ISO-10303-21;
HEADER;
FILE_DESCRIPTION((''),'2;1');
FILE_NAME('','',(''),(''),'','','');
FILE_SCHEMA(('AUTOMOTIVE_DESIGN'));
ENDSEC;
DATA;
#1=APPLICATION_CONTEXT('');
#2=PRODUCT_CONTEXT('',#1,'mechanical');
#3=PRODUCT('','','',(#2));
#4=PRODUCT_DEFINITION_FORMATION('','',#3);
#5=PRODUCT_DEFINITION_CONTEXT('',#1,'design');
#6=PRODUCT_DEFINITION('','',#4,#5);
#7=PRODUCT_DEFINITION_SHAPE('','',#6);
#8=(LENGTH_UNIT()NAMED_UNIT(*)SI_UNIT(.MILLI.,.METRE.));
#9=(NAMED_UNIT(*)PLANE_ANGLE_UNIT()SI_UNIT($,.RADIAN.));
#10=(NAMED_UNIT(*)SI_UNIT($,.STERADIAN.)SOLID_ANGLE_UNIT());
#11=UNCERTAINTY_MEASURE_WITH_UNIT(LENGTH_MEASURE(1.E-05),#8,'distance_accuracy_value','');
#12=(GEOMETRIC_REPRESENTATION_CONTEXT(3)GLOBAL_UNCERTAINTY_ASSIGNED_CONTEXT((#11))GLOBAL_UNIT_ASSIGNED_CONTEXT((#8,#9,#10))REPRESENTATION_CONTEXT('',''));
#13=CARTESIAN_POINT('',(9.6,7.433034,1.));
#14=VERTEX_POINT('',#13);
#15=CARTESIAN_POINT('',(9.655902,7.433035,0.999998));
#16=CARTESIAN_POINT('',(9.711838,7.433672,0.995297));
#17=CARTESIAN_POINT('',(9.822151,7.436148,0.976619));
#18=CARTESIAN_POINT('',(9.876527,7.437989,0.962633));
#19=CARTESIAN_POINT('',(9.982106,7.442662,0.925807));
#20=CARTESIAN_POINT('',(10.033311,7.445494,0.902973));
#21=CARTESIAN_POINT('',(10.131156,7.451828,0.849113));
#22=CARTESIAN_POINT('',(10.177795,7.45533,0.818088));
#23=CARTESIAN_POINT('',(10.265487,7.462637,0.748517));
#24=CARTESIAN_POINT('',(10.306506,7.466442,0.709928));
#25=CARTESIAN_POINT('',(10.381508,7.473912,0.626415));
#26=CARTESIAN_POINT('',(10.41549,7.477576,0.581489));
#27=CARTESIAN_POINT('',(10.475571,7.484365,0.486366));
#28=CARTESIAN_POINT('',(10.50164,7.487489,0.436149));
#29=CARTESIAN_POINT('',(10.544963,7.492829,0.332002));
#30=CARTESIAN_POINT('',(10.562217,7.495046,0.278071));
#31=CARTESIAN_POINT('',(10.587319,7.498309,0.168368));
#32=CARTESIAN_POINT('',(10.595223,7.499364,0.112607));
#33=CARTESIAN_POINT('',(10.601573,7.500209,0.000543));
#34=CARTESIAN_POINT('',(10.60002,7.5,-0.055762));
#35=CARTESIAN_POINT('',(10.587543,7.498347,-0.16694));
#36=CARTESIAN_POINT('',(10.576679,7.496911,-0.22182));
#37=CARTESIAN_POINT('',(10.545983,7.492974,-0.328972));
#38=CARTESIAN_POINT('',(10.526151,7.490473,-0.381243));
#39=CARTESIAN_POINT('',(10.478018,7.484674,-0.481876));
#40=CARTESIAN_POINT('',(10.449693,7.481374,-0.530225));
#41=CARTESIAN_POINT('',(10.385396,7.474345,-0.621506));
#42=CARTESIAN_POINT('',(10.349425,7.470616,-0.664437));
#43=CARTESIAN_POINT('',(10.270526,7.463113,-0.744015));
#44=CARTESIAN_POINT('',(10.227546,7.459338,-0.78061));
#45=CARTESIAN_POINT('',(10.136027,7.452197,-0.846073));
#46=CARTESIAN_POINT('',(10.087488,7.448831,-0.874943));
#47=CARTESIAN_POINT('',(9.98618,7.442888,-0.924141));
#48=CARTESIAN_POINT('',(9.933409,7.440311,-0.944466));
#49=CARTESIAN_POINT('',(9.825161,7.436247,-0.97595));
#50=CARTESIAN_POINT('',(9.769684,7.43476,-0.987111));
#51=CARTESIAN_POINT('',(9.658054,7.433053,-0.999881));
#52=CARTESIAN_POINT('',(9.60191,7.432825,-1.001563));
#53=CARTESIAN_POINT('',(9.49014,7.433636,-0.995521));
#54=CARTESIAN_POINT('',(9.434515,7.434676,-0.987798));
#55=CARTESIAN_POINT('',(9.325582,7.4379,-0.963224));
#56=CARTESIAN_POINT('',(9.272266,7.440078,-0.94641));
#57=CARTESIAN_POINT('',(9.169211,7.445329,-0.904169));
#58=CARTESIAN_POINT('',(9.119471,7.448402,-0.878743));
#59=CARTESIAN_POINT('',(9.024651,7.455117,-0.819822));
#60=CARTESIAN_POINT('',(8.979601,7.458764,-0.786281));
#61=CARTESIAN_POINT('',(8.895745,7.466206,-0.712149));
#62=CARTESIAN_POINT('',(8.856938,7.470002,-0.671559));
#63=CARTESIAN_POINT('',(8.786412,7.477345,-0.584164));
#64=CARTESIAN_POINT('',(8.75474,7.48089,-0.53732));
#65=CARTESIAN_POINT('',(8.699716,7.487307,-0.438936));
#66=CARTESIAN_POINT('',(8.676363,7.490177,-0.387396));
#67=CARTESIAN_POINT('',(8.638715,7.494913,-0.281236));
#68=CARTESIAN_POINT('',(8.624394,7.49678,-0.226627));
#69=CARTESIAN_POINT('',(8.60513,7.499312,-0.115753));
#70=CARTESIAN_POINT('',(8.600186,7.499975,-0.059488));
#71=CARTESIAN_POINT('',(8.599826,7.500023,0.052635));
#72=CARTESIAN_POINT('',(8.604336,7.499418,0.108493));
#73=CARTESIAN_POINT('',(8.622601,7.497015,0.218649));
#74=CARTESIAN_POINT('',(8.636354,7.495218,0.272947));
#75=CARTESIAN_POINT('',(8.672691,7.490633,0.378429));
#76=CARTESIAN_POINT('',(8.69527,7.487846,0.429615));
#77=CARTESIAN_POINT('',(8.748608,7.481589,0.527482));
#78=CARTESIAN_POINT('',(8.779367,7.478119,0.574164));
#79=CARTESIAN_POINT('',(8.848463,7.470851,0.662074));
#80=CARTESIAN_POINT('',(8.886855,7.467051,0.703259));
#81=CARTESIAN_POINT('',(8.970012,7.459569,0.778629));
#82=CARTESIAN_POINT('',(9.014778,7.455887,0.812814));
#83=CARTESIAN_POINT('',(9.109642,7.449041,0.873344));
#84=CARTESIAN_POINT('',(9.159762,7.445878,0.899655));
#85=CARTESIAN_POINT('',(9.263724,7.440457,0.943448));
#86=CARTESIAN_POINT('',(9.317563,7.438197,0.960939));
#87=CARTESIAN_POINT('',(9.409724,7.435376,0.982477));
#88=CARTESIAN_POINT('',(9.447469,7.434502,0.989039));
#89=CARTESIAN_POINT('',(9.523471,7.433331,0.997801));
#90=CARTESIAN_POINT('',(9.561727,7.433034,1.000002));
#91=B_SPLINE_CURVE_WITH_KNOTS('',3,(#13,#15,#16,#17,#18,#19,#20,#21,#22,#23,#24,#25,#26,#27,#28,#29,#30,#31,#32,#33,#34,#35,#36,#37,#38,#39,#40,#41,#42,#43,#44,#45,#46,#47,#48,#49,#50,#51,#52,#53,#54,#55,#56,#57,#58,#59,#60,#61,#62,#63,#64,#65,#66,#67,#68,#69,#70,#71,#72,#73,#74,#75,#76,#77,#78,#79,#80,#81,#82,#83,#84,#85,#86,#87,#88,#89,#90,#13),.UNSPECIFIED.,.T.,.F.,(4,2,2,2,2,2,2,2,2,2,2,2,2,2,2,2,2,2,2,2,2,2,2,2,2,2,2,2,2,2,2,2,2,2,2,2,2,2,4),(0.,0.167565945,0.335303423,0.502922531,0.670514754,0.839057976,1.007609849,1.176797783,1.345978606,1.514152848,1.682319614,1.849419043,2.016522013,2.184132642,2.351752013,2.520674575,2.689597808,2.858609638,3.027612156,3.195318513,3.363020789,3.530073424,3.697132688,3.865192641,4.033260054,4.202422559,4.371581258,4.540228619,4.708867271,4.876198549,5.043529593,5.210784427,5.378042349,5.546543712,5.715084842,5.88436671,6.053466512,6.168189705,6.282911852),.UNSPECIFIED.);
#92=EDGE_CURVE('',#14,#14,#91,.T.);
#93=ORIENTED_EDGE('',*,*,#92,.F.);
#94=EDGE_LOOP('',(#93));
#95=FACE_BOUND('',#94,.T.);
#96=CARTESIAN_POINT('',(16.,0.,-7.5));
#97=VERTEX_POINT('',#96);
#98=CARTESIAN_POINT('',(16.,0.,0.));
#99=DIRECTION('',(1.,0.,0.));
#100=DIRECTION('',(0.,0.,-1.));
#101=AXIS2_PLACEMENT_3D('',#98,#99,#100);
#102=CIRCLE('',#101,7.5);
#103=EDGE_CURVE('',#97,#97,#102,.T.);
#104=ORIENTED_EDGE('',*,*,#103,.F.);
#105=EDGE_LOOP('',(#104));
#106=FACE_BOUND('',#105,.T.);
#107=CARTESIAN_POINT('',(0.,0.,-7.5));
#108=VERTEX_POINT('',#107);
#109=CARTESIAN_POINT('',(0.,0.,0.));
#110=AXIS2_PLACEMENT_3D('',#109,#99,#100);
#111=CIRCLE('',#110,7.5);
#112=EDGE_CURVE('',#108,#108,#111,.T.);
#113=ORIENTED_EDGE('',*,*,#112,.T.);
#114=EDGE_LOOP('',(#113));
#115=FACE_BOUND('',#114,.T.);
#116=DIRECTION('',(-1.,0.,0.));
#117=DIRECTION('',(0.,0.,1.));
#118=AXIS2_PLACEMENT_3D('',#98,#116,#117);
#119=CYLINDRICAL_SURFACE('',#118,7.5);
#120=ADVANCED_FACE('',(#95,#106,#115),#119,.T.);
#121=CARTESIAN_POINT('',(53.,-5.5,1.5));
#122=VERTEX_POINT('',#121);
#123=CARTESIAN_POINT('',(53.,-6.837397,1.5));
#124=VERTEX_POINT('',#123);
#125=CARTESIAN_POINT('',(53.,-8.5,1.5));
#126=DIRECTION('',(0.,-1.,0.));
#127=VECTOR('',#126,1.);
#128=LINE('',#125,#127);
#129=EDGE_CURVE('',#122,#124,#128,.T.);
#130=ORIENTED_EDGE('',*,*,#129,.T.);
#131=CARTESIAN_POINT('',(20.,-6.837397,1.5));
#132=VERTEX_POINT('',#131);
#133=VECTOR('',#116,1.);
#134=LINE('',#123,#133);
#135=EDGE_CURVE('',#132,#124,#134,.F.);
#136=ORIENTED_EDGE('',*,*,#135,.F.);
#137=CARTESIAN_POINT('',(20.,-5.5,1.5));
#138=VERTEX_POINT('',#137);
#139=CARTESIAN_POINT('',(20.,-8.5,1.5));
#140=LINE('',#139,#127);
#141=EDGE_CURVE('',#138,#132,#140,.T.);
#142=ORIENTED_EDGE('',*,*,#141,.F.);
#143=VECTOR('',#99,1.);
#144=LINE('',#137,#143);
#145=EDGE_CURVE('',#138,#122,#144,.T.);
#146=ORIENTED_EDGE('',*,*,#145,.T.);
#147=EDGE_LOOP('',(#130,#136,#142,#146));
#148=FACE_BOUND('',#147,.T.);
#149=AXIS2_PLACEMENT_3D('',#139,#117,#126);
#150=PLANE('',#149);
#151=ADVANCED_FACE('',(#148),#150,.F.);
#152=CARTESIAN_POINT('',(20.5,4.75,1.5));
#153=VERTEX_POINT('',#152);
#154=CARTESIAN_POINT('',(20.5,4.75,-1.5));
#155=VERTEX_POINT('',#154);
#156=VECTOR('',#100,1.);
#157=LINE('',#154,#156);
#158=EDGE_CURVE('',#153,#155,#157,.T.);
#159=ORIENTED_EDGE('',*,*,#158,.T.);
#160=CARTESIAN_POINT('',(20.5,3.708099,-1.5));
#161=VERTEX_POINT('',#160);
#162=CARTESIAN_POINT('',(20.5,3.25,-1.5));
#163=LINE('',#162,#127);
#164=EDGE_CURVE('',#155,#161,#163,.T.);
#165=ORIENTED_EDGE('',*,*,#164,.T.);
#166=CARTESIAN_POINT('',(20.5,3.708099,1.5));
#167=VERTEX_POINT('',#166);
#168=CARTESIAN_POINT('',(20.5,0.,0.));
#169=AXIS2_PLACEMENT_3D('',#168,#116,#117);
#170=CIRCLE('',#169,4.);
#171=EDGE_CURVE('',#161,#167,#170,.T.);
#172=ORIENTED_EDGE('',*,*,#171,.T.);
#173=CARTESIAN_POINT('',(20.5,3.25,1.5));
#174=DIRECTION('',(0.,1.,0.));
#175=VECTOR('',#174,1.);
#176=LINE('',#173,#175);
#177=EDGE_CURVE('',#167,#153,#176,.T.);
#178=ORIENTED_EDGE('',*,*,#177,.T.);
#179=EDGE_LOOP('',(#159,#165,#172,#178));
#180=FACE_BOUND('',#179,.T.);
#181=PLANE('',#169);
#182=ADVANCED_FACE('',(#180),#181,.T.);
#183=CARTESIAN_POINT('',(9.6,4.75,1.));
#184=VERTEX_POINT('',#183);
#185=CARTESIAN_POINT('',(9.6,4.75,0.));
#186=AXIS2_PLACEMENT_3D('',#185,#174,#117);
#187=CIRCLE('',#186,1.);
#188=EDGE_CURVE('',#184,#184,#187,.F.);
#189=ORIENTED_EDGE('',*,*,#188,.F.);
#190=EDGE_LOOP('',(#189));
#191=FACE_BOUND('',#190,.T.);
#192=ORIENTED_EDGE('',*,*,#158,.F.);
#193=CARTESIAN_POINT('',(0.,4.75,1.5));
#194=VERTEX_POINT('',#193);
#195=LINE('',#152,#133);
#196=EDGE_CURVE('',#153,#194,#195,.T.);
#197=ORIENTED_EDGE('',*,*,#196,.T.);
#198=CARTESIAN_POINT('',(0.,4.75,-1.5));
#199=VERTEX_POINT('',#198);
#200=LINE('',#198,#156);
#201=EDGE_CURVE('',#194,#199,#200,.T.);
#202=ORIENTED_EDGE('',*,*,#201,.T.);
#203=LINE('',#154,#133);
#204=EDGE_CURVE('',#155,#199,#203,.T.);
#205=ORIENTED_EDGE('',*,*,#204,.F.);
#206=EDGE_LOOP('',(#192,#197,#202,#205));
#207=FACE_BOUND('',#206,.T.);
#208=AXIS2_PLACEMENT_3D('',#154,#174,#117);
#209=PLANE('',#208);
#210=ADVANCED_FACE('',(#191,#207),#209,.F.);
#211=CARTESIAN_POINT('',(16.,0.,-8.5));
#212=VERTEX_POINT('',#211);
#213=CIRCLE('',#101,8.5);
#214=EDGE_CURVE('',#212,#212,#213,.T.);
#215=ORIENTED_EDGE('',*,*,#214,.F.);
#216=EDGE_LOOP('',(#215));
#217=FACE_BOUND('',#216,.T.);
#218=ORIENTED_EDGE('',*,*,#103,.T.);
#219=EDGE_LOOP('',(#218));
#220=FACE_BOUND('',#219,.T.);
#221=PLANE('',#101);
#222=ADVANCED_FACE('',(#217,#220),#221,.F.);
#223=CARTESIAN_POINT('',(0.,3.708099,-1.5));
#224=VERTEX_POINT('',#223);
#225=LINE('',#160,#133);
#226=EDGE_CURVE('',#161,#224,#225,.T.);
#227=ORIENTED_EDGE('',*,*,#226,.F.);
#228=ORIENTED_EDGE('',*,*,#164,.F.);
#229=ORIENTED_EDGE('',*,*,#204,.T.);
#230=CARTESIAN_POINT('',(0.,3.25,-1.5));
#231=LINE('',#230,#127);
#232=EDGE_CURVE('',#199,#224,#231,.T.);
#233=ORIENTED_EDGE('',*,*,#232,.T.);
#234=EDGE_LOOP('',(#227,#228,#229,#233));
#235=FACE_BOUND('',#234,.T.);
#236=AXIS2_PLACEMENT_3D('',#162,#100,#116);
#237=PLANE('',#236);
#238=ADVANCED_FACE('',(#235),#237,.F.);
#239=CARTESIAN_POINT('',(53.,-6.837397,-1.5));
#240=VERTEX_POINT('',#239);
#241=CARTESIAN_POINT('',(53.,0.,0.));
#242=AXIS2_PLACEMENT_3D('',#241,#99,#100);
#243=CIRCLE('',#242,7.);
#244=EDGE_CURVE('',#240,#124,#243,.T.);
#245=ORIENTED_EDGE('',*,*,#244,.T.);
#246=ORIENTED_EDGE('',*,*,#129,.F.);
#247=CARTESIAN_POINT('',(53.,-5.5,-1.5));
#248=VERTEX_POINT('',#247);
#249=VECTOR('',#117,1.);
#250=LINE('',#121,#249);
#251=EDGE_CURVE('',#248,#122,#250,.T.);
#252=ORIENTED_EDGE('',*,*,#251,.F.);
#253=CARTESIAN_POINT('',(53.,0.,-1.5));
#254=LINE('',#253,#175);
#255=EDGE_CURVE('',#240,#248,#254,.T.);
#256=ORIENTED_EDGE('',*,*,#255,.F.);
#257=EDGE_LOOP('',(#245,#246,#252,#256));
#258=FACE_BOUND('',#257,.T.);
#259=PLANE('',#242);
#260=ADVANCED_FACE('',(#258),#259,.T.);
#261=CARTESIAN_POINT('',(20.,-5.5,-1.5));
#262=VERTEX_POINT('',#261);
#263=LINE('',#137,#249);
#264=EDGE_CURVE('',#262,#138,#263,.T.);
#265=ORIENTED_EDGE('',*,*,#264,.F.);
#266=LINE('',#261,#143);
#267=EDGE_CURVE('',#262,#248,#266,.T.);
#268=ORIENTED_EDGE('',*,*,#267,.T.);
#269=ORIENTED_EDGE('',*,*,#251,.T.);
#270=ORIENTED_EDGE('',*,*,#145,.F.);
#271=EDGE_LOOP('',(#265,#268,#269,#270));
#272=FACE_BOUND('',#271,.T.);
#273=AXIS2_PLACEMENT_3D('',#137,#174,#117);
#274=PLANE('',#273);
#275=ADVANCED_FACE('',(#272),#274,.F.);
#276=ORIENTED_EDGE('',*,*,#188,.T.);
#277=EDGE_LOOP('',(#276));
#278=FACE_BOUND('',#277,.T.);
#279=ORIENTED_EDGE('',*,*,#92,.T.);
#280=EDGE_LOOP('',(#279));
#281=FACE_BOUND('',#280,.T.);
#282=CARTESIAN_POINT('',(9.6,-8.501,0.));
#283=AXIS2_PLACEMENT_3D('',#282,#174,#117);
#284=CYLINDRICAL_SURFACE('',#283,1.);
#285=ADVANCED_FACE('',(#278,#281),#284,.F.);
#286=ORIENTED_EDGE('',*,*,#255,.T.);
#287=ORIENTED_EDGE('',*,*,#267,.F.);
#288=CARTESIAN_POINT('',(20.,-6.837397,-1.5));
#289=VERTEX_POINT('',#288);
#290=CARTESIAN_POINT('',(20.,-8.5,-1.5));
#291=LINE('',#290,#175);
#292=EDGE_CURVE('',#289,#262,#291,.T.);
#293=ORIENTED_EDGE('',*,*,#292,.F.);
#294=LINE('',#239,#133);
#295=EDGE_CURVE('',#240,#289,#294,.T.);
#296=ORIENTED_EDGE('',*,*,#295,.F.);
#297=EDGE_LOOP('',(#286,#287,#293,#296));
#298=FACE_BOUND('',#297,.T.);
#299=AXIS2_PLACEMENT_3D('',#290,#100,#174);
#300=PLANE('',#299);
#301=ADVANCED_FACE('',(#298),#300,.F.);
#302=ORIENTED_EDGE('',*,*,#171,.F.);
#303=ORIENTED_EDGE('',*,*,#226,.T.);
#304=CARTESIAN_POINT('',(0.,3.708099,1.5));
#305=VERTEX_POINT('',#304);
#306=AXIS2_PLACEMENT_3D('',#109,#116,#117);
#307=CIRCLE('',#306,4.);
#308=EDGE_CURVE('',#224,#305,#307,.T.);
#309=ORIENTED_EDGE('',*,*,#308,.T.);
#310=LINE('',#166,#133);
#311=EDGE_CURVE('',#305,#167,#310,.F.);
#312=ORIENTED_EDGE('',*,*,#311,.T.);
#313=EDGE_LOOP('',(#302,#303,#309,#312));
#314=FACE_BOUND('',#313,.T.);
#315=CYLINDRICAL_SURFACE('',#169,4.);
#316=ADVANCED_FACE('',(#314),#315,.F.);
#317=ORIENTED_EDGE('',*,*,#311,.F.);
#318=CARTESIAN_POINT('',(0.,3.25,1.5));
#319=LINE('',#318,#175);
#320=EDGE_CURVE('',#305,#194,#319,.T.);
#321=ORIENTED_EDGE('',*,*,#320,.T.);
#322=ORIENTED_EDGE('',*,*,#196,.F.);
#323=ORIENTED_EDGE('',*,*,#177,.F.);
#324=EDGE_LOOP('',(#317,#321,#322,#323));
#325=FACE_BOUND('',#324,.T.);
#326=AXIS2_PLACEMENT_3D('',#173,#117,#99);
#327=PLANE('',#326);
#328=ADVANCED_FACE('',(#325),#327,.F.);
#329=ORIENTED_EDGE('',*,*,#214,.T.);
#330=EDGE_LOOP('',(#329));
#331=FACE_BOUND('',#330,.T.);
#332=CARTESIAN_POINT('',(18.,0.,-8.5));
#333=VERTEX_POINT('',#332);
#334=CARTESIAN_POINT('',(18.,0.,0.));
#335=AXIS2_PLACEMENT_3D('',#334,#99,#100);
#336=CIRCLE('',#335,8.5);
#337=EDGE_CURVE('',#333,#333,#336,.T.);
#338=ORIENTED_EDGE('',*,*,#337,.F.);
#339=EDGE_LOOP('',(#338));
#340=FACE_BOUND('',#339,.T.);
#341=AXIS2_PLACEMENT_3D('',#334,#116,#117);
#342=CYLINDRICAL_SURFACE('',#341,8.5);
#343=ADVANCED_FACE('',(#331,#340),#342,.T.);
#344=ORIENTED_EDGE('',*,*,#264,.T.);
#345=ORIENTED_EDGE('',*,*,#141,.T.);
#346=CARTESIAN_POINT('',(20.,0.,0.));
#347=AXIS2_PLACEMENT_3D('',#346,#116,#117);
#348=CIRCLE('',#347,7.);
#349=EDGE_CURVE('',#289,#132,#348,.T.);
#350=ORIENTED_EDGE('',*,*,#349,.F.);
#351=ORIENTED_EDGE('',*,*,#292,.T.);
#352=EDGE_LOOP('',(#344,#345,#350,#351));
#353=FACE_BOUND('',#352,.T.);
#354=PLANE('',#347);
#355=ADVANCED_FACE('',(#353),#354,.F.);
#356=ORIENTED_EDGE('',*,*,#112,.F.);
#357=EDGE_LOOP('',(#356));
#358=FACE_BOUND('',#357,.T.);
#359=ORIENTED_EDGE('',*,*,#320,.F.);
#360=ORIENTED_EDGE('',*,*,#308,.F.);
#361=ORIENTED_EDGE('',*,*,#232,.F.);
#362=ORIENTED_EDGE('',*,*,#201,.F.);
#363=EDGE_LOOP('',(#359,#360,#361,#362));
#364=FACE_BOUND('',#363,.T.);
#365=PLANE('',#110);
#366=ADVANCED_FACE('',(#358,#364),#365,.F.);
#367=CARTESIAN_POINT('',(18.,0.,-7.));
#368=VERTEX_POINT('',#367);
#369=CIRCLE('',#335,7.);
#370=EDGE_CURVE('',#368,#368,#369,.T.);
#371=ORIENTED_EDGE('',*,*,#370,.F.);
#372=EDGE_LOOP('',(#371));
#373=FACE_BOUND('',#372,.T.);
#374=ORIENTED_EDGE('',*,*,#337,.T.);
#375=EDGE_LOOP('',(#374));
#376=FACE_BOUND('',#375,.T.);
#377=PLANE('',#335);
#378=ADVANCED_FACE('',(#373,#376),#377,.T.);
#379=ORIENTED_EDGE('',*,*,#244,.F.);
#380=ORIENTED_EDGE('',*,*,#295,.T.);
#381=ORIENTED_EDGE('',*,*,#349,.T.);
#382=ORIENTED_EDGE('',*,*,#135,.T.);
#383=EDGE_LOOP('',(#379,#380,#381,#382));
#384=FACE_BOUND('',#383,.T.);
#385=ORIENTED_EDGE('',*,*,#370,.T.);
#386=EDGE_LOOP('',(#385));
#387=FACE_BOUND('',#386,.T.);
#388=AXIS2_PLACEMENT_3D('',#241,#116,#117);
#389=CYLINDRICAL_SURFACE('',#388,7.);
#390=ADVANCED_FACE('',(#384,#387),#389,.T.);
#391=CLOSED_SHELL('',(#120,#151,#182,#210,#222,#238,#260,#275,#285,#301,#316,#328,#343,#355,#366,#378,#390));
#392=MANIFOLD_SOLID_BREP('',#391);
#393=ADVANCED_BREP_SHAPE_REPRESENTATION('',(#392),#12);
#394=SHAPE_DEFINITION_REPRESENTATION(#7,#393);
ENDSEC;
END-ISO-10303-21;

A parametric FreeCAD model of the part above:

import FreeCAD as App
import Part
import Sketcher
Q = App.Units.Quantity


def add_polygon(sketch, points):
    """Adds a closed chain of lines whose ends are joined by coincident constraints."""
    first, n = sketch.GeometryCount, len(points)
    for a, b in zip(points, points[1:] + points[:1]):
        sketch.addGeometry(Part.LineSegment(App.Vector(*a, 0), App.Vector(*b, 0)), False)
    for i in range(n):
        sketch.addConstraint(Sketcher.Constraint("Coincident", first + i, 2, first + (i + 1) % n, 1))

doc = App.newDocument("Part")
params = doc.addObject("Spreadsheet::Sheet", "Params")
for row, (alias, value) in enumerate([
    ("sketch1_diameter", "15 mm"),
    ("pad1_length", "16 mm"),
    ("sketch2_diameter", "17 mm"),
    ("pad2_length", "2 mm"),
    ("sketch3_diameter", "14 mm"),
    ("pad3_length", "35 mm"),
    ("sketch4_diameter", "8 mm"),
    ("pocket1_length", "20.5 mm"),
    ("sketch5_height", "3 mm"),
    ("sketch5_width", "1.5 mm"),
    ("pocket2_length", "20.5 mm"),
    ("sketch6_diameter", "2 mm"),
    ("sketch7_width", "3 mm"),
    ("pocket4_length", "33 mm"),
], start=1):
    params.set(f"A{row}", alias)
    params.set(f"B{row}", "=" + value)
    params.setAlias(f"B{row}", alias)

body = doc.addObject("PartDesign::Body", "Body")

sketch1 = doc.addObject("Sketcher::SketchObject", "Sketch")
body.addObject(sketch1)
sketch1.AttachmentSupport = (doc.YZ_Plane, [""])
sketch1.MapMode = "FlatFace"
sketch1.addGeometry(Part.Circle(App.Vector(0, 0, 0), App.Vector(0, 0, 1), 8), False)
sketch1.addConstraint([
    Sketcher.Constraint("Coincident", 0, 3, -1, 1),
    Sketcher.Constraint("Diameter", 0, Q("15 mm")),
])
sketch1.setExpression("Constraints[1]", "Params.sketch1_diameter")
pad1 = doc.addObject("PartDesign::Pad", "Pad")
body.addObject(pad1)
pad1.Profile = sketch1
pad1.setExpression("Length", "Params.pad1_length")

sketch2 = doc.addObject("Sketcher::SketchObject", "Sketch001")
body.addObject(sketch2)
sketch2.AttachmentSupport = (doc.YZ_Plane, [""])
sketch2.MapMode = "FlatFace"
sketch2.AttachmentOffset = App.Placement(App.Vector(0, 0, 16), App.Rotation())
sketch2.addGeometry(Part.Circle(App.Vector(0, 0, 0), App.Vector(0, 0, 1), 8), False)
sketch2.addConstraint([
    Sketcher.Constraint("Coincident", 0, 3, -1, 1),
    Sketcher.Constraint("Diameter", 0, Q("17 mm")),
])
sketch2.setExpression("Constraints[1]", "Params.sketch2_diameter")
pad2 = doc.addObject("PartDesign::Pad", "Pad001")
body.addObject(pad2)
pad2.Profile = sketch2
pad2.setExpression("Length", "Params.pad2_length")

sketch3 = doc.addObject("Sketcher::SketchObject", "Sketch002")
body.addObject(sketch3)
sketch3.AttachmentSupport = (doc.YZ_Plane, [""])
sketch3.MapMode = "FlatFace"
sketch3.AttachmentOffset = App.Placement(App.Vector(0, 0, 18), App.Rotation())
sketch3.addGeometry(Part.Circle(App.Vector(0, 0, 0), App.Vector(0, 0, 1), 7), False)
sketch3.addConstraint([
    Sketcher.Constraint("Coincident", 0, 3, -1, 1),
    Sketcher.Constraint("Diameter", 0, Q("14 mm")),
])
sketch3.setExpression("Constraints[1]", "Params.sketch3_diameter")
pad3 = doc.addObject("PartDesign::Pad", "Pad002")
body.addObject(pad3)
pad3.Profile = sketch3
pad3.setExpression("Length", "Params.pad3_length")

sketch4 = doc.addObject("Sketcher::SketchObject", "Sketch003")
body.addObject(sketch4)
sketch4.AttachmentSupport = (doc.YZ_Plane, [""])
sketch4.MapMode = "FlatFace"
sketch4.addGeometry(Part.Circle(App.Vector(0, 0, 0), App.Vector(0, 0, 1), 4), False)
sketch4.addConstraint([
    Sketcher.Constraint("Coincident", 0, 3, -1, 1),
    Sketcher.Constraint("Diameter", 0, Q("8 mm")),
])
sketch4.setExpression("Constraints[1]", "Params.sketch4_diameter")
pocket1 = doc.addObject("PartDesign::Pocket", "Pocket")
body.addObject(pocket1)
pocket1.Profile = sketch4
pocket1.setExpression("Length", "Params.pocket1_length")
pocket1.Reversed = True

sketch5 = doc.addObject("Sketcher::SketchObject", "Sketch004")
body.addObject(sketch5)
sketch5.AttachmentSupport = (doc.YZ_Plane, [""])
sketch5.MapMode = "FlatFace"
add_polygon(sketch5, [(4.8, -1.5), (3.2, -1.5), (3.2, 1.5), (4.8, 1.5)])
sketch5.addConstraint([
    Sketcher.Constraint("Horizontal", 0),
    Sketcher.Constraint("Vertical", 1),
    Sketcher.Constraint("Horizontal", 2),
    Sketcher.Constraint("Vertical", 3),
    Sketcher.Constraint("DistanceY", 1, 1, 1, 2, Q("3 mm")),
    Sketcher.Constraint("DistanceX", 0, 2, 0, 1, Q("1.5 mm")),
    Sketcher.Constraint("DistanceY", 0, 2, -1, 1, Q("1.5 mm")),
    Sketcher.Constraint("DistanceX", -1, 1, 0, 2, Q("3.25 mm")),
])
sketch5.setExpression("Constraints[8]", "Params.sketch5_height")
sketch5.setExpression("Constraints[9]", "Params.sketch5_width")
pocket2 = doc.addObject("PartDesign::Pocket", "Pocket001")
body.addObject(pocket2)
pocket2.Profile = sketch5
pocket2.setExpression("Length", "Params.pocket2_length")
pocket2.Reversed = True

sketch6 = doc.addObject("Sketcher::SketchObject", "Sketch005")
body.addObject(sketch6)
sketch6.AttachmentSupport = (doc.XZ_Plane, [""])
sketch6.MapMode = "FlatFace"
sketch6.AttachmentOffset = App.Placement(App.Vector(0, 0, -7.5), App.Rotation())
sketch6.addGeometry(Part.Circle(App.Vector(9.6, 0, 0), App.Vector(0, 0, 1), 1), False)
sketch6.addConstraint([
    Sketcher.Constraint("PointOnObject", 0, 3, -1),
    Sketcher.Constraint("Diameter", 0, Q("2 mm")),
    Sketcher.Constraint("DistanceX", -1, 1, 0, 3, Q("9.6 mm")),
])
sketch6.setExpression("Constraints[1]", "Params.sketch6_diameter")
pocket3 = doc.addObject("PartDesign::Pocket", "Pocket002")
body.addObject(pocket3)
pocket3.Profile = sketch6
pocket3.Type = "UpToFirst"
pocket3.Reversed = True

sketch7 = doc.addObject("Sketcher::SketchObject", "Sketch006")
body.addObject(sketch7)
sketch7.AttachmentSupport = (doc.YZ_Plane, [""])
sketch7.MapMode = "FlatFace"
sketch7.AttachmentOffset = App.Placement(App.Vector(0, 0, 53), App.Rotation())
add_polygon(sketch7, [(-5.5, 1.5), (-8.5, 1.5), (-8.5, -1.5), (-5.5, -1.5)])
sketch7.addConstraint([
    Sketcher.Constraint("Horizontal", 0),
    Sketcher.Constraint("Vertical", 1),
    Sketcher.Constraint("Horizontal", 2),
    Sketcher.Constraint("Vertical", 3),
    Sketcher.Constraint("Equal", 2, 1),
    Sketcher.Constraint("DistanceX", 0, 2, 0, 1, Q("3 mm")),
    Sketcher.Constraint("DistanceX", 0, 2, -1, 1, Q("8.5 mm")),
    Sketcher.Constraint("DistanceY", -1, 1, 0, 2, Q("1.5 mm")),
])
sketch7.setExpression("Constraints[9]", "Params.sketch7_width")
pocket4 = doc.addObject("PartDesign::Pocket", "Pocket003")
body.addObject(pocket4)
pocket4.Profile = sketch7
pocket4.setExpression("Length", "Params.pocket4_length")

doc.recompute()
